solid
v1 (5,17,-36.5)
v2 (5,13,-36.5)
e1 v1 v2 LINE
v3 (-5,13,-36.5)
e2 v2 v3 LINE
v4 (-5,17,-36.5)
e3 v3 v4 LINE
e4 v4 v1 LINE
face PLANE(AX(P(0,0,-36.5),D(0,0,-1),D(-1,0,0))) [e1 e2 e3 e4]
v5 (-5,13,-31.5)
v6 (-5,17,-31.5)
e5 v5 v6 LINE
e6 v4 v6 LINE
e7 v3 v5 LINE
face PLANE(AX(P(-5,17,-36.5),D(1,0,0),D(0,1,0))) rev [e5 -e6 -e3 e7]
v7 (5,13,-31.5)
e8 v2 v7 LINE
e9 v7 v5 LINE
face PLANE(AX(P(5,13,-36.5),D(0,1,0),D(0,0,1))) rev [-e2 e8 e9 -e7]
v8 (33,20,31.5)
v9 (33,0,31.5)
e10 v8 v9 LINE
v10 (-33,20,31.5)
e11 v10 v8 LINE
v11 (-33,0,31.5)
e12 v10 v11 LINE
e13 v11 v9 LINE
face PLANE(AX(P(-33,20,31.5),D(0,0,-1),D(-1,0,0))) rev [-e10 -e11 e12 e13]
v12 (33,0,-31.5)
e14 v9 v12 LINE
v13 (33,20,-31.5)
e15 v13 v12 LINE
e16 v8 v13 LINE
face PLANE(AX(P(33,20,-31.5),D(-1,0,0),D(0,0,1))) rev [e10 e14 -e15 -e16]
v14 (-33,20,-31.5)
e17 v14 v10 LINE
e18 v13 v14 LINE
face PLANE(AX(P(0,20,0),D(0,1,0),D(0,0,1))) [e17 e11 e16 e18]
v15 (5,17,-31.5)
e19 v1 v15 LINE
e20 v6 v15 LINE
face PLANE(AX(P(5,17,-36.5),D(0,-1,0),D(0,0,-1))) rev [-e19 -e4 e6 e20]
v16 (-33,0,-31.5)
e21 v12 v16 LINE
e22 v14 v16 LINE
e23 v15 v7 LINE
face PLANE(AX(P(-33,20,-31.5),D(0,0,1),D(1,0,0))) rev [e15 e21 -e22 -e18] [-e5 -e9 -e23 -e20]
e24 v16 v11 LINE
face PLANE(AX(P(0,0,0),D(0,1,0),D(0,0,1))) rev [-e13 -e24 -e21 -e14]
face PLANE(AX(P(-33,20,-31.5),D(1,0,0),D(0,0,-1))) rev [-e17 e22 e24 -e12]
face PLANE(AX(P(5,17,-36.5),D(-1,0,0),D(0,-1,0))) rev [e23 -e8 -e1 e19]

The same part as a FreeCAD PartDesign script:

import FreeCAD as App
import Part
import Sketcher
from FreeCAD import Vector


def add_polygon(sketch, points):
    """Adds a closed chain of lines whose ends are joined by coincident constraints."""
    first, n = sketch.GeometryCount, len(points)
    for a, b in zip(points, points[1:] + points[:1]):
        sketch.addGeometry(Part.LineSegment(App.Vector(*a, 0), App.Vector(*b, 0)), False)
    for i in range(n):
        sketch.addConstraint(Sketcher.Constraint("Coincident", first + i, 2, first + (i + 1) % n, 1))

doc = App.newDocument("Part")
body = doc.addObject("PartDesign::Body", "Body")

# Sketch on XZ plane
sketch1 = doc.addObject("Sketcher::SketchObject", "Sketch")
body.addObject(sketch1)
sketch1.AttachmentSupport = (doc.XZ_Plane, [""])
sketch1.MapMode = "FlatFace"
add_polygon(sketch1, [(-33, -32), (-33, 32), (33, 32), (33, -32)])  # lines 0-3
sketch1.addConstraint([
    Sketcher.Constraint("Vertical", 0),
    Sketcher.Constraint("Horizontal", 1),
    Sketcher.Constraint("Vertical", 2),
    Sketcher.Constraint("Horizontal", 3),
    Sketcher.Constraint("Symmetric", 0, 2, 2, 2, -1, 1),
    Sketcher.Constraint("DistanceX", 1, 1, 1, 2, 66.0),
    Sketcher.Constraint("DistanceY", 0, 1, 0, 2, 63.0),
])
pad1 = doc.addObject("PartDesign::Pad", "Pad")
body.addObject(pad1)
pad1.Profile = sketch1
pad1.Length = 20
pad1.Reversed = True

# Sketch on XY plane
sketch2 = doc.addObject("Sketcher::SketchObject", "Sketch001")
body.addObject(sketch2)
sketch2.AttachmentSupport = (doc.XY_Plane, [""])
sketch2.MapMode = "FlatFace"
sketch2.AttachmentOffset = App.Placement(Vector(0, 0, -31.5), App.Rotation())
add_polygon(sketch2, [(5, 17), (5, 13), (-5, 13), (-5, 17)])  # lines 0-3
sketch2.addConstraint([
    Sketcher.Constraint("Vertical", 0),
    Sketcher.Constraint("Horizontal", 1),
    Sketcher.Constraint("Vertical", 2),
    Sketcher.Constraint("Horizontal", 3),
    Sketcher.Constraint("DistanceX", 1, 2, 1, 1, 10.0),
    Sketcher.Constraint("DistanceY", 0, 2, 0, 1, 4.0),
    Sketcher.Constraint("DistanceX", -1, 1, 0, 2, 5.0),
    Sketcher.Constraint("DistanceY", -1, 1, 0, 2, 13.0),
])
pad2 = doc.addObject("PartDesign::Pad", "Pad001")
body.addObject(pad2)
pad2.Profile = sketch2
pad2.Length = 5
pad2.Reversed = True

doc.recompute()
